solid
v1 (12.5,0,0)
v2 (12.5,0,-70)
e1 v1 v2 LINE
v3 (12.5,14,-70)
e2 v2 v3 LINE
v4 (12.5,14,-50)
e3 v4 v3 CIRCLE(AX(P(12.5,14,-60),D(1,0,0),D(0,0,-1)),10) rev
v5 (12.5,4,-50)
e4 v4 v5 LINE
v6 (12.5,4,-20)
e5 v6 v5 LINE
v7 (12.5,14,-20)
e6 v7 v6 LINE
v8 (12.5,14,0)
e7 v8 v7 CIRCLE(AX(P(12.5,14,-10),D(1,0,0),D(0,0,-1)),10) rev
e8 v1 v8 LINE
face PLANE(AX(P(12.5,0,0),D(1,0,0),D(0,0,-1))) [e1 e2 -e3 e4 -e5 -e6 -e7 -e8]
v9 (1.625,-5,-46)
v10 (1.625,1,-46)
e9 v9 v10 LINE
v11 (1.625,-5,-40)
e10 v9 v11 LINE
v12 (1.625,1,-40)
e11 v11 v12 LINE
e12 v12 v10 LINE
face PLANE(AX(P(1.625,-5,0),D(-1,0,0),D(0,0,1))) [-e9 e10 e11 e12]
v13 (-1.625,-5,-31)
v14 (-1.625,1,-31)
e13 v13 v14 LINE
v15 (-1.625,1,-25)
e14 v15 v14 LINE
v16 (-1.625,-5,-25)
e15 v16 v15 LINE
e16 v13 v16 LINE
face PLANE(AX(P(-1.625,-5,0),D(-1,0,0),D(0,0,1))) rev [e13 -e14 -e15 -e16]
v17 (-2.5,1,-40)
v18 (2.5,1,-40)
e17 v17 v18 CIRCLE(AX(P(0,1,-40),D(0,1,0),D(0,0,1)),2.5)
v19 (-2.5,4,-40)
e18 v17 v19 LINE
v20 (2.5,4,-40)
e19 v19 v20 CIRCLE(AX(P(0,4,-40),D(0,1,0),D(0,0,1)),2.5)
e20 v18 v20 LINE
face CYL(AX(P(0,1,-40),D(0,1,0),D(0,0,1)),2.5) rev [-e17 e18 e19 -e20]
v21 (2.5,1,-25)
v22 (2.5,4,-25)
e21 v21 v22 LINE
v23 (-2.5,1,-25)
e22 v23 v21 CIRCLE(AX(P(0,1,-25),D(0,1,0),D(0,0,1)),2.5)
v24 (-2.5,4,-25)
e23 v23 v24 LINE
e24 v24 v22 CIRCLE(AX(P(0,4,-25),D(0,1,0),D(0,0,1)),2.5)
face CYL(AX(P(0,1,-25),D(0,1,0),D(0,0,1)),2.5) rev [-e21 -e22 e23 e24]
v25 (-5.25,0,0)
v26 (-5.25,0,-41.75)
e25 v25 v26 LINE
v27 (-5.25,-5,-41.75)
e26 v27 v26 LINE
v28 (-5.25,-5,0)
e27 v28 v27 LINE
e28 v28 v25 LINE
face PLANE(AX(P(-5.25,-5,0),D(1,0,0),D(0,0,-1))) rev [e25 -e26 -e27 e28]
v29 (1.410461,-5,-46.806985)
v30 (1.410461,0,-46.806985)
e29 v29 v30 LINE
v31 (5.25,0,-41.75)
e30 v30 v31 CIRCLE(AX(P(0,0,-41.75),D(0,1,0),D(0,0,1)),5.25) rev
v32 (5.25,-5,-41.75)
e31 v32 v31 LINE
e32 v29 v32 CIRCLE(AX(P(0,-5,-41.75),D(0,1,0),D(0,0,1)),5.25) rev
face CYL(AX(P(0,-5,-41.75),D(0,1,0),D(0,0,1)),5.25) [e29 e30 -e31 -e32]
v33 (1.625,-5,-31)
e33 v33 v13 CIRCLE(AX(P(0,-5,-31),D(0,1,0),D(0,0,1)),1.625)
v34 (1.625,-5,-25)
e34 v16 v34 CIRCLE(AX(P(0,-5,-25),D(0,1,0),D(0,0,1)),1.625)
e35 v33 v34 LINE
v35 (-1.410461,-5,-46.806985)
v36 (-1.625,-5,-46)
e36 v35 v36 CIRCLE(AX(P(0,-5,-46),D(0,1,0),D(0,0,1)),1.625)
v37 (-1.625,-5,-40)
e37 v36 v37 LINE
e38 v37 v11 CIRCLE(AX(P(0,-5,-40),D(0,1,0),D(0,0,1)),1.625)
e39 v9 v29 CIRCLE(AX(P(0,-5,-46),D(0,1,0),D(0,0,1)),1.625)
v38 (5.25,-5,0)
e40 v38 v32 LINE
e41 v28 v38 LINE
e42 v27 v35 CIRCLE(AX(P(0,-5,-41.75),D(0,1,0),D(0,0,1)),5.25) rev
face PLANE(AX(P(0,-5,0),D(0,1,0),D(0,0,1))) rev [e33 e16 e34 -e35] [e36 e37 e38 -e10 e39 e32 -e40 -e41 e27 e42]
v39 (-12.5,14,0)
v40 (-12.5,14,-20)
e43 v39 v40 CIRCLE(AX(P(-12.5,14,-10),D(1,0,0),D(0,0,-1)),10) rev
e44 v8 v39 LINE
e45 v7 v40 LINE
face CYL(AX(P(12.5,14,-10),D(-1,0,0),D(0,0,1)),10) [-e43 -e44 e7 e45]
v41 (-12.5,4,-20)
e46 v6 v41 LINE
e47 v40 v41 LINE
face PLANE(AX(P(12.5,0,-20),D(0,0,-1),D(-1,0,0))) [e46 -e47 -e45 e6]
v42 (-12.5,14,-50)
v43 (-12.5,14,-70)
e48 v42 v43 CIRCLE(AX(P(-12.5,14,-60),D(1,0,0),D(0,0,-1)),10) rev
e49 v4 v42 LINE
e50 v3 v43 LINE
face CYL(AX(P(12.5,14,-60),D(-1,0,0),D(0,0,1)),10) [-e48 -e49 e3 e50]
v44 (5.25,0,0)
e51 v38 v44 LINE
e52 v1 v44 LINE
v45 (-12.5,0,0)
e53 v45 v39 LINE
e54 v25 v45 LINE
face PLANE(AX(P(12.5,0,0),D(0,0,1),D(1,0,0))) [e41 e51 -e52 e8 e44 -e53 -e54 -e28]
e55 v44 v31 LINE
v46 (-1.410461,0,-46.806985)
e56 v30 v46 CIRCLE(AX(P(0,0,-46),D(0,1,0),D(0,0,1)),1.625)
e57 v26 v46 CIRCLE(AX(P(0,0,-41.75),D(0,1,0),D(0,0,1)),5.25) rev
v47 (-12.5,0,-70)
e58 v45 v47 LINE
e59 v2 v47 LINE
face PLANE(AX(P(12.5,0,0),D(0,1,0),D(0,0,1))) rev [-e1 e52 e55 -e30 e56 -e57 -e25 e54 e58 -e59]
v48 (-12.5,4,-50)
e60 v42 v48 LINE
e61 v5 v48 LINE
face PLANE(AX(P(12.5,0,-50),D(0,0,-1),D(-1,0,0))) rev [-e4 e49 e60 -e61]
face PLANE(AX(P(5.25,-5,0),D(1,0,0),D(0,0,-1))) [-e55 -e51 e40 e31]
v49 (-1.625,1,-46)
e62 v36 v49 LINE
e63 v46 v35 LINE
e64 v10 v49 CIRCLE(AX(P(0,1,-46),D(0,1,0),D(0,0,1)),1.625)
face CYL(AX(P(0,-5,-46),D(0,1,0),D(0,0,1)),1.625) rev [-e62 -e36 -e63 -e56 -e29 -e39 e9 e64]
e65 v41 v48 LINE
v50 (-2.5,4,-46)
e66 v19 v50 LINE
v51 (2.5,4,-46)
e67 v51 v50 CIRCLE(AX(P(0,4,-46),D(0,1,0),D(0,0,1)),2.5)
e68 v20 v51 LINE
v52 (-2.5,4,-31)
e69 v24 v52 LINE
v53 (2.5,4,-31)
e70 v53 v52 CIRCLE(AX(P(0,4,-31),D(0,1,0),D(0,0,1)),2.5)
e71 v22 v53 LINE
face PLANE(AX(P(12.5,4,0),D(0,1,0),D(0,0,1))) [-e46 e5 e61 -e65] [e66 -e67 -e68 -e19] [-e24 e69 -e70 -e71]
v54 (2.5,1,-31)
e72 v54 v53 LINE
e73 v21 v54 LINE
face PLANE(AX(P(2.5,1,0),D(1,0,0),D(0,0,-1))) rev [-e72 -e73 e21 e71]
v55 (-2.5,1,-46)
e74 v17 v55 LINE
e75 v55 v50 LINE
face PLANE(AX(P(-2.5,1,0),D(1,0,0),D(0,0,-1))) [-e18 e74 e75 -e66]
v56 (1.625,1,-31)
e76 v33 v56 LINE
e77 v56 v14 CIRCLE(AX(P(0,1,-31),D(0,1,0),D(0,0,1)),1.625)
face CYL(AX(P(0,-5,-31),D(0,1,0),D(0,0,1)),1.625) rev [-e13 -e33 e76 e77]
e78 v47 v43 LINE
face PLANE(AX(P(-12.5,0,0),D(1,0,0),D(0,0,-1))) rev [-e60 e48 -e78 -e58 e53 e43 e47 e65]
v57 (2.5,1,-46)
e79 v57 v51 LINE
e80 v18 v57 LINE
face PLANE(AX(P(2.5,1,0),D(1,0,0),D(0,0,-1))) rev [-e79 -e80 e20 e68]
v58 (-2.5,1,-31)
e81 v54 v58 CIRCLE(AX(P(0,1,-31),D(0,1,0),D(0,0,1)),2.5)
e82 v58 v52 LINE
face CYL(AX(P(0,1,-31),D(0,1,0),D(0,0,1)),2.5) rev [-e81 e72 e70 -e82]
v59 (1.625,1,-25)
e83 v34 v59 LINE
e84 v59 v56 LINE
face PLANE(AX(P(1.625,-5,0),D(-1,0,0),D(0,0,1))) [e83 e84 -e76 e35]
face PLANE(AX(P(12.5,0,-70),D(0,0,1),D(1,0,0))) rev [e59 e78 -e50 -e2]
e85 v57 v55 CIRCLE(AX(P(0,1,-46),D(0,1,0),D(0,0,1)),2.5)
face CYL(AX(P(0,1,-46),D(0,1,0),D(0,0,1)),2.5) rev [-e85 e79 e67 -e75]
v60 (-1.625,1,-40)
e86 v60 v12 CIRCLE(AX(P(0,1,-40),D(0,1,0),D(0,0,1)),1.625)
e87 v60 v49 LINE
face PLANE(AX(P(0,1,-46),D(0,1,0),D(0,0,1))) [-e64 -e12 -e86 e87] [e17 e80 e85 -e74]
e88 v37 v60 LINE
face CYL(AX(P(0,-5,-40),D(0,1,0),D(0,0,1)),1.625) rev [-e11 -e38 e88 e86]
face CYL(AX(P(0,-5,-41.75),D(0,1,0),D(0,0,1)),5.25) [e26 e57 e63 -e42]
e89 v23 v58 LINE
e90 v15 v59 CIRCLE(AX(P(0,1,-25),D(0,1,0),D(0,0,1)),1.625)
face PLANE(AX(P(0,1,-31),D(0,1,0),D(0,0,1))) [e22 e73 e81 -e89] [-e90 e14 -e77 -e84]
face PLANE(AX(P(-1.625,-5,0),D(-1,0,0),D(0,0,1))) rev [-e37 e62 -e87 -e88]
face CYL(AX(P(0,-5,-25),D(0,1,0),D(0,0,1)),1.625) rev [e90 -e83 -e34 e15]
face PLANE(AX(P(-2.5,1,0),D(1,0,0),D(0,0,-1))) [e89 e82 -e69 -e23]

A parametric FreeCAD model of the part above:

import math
import FreeCAD as App
import Part
import Sketcher

V = App.Vector

doc = App.newDocument("Part")
body = doc.addObject("PartDesign::Body", "Body")

# Sketch on YZ plane
sketch1 = body.newObject("Sketcher::SketchObject", "Sketch")
sketch1.AttachmentSupport = (doc.getObject("YZ_Plane"), [""])
sketch1.MapMode = "FlatFace"
sketch1.addGeometry([
    Part.LineSegment(V(0, 0, 0), V(0, -70, 0)),  # 0
    Part.LineSegment(V(0, -70, 0), V(14, -70, 0)),  # 1
    Part.ArcOfCircle(Part.Circle(V(14, -60, 0), V(0, 0, 1), 10), math.radians(-90), math.radians(90)),  # 2
    Part.LineSegment(V(14, -50, 0), V(4, -50, 0)),  # 3
    Part.LineSegment(V(4, -50, 0), V(4, -20, 0)),  # 4
    Part.LineSegment(V(4, -20, 0), V(14, -20, 0)),  # 5
    Part.ArcOfCircle(Part.Circle(V(14, -10, 0), V(0, 0, 1), 10), math.radians(-90), math.radians(90)),  # 6
    Part.LineSegment(V(14, 0, 0), V(0, 0, 0)),  # 7
], False)
sketch1.addConstraint([
    Sketcher.Constraint("Coincident", 0, 2, 1, 1),
    Sketcher.Constraint("Tangent", 1, 2, 2, 1),
    Sketcher.Constraint("Tangent", 2, 2, 3, 1),
    Sketcher.Constraint("Coincident", 3, 2, 4, 1),
    Sketcher.Constraint("Coincident", 4, 2, 5, 1),
    Sketcher.Constraint("Tangent", 5, 2, 6, 1),
    Sketcher.Constraint("Tangent", 6, 2, 7, 1),
    Sketcher.Constraint("Coincident", 7, 2, 0, 1),
    Sketcher.Constraint("Vertical", 0),
    Sketcher.Constraint("Horizontal", 1),
    Sketcher.Constraint("Horizontal", 3),
    Sketcher.Constraint("Vertical", 4),
    Sketcher.Constraint("Horizontal", 5),
    Sketcher.Constraint("Horizontal", 7),
    Sketcher.Constraint("Coincident", 7, 2, -1, 1),
    Sketcher.Constraint("Equal", 2, 6),
    Sketcher.Constraint("Vertical", 2, 3, 6, 3),
    Sketcher.Constraint("Radius", 2, 10.0),
    Sketcher.Constraint("DistanceX", 1, 1, 1, 2, 14.0),
    Sketcher.Constraint("DistanceX", 3, 2, 3, 1, 10.0),
    Sketcher.Constraint("DistanceY", 0, 2, 0, 1, 70.0),
])
pad1 = body.newObject("PartDesign::Pad", "Pad")
pad1.Profile = sketch1
pad1.Length = 25
pad1.Midplane = True

# Sketch on XZ plane
sketch2 = body.newObject("Sketcher::SketchObject", "Sketch001")
sketch2.AttachmentSupport = (doc.getObject("XZ_Plane"), [""])
sketch2.MapMode = "FlatFace"
sketch2.addGeometry([
    Part.ArcOfCircle(Part.Circle(V(0, -41.75, 0), V(0, 0, 1), 5.25), math.radians(180), math.radians(360)),
    Part.LineSegment(V(-5.25, -41.75, 0), V(-5.25, 0, 0)),
    Part.LineSegment(V(-5.25, 0, 0), V(5.25, 0, 0)),
    Part.LineSegment(V(5.25, 0, 0), V(5.25, -41.75, 0)),
], False)
sketch2.addConstraint([
    Sketcher.Constraint("Tangent", 0, 1, 1, 1),
    Sketcher.Constraint("Coincident", 1, 2, 2, 1),
    Sketcher.Constraint("Coincident", 2, 2, 3, 1),
    Sketcher.Constraint("Tangent", 3, 2, 0, 2),
    Sketcher.Constraint("Vertical", 1),
    Sketcher.Constraint("Horizontal", 2),
    Sketcher.Constraint("Vertical", 3),
    Sketcher.Constraint("Symmetric", 1, 2, 2, 2, -1, 1),
    Sketcher.Constraint("Radius", 0, 5.25),
    Sketcher.Constraint("DistanceY", 1, 1, 1, 2, 41.75),
])
pad2 = body.newObject("PartDesign::Pad", "Pad001")
pad2.Profile = sketch2
pad2.Length = 5

# Sketch on XZ plane
sketch3 = body.newObject("Sketcher::SketchObject", "Sketch002")
sketch3.AttachmentSupport = (doc.getObject("XZ_Plane"), [""])
sketch3.MapMode = "FlatFace"
sketch3.addGeometry([
    Part.LineSegment(V(1.625, -25, 0), V(1.625, -31, 0)),  # 0
    Part.ArcOfCircle(Part.Circle(V(0, -31, 0), V(0, 0, 1), 1.625), math.radians(180), math.radians(360)),  # 1
    Part.LineSegment(V(-1.625, -31, 0), V(-1.625, -25, 0)),  # 2
    Part.ArcOfCircle(Part.Circle(V(0, -25, 0), V(0, 0, 1), 1.625), math.radians(0), math.radians(180)),  # 3
    Part.LineSegment(V(1.625, -40, 0), V(1.625, -46, 0)),  # 4
    Part.ArcOfCircle(Part.Circle(V(0, -46, 0), V(0, 0, 1), 1.625), math.radians(180), math.radians(360)),  # 5
    Part.LineSegment(V(-1.625, -46, 0), V(-1.625, -40, 0)),  # 6
    Part.ArcOfCircle(Part.Circle(V(0, -40, 0), V(0, 0, 1), 1.625), math.radians(0), math.radians(180)),  # 7
], False)
sketch3.addConstraint([
    Sketcher.Constraint("Tangent", 0, 2, 1, 2),
    Sketcher.Constraint("Tangent", 1, 1, 2, 1),
    Sketcher.Constraint("Tangent", 2, 2, 3, 2),
    Sketcher.Constraint("Tangent", 3, 1, 0, 1),
    Sketcher.Constraint("Tangent", 4, 2, 5, 2),
    Sketcher.Constraint("Tangent", 5, 1, 6, 1),
    Sketcher.Constraint("Tangent", 6, 2, 7, 2),
    Sketcher.Constraint("Tangent", 7, 1, 4, 1),
    Sketcher.Constraint("Vertical", 0),
    Sketcher.Constraint("Vertical", 2),
    Sketcher.Constraint("Vertical", 4),
    Sketcher.Constraint("Vertical", 6),
    Sketcher.Constraint("Equal", 3, 5),
    Sketcher.Constraint("PointOnObject", 1, 3, -2),
    Sketcher.Constraint("PointOnObject", 5, 3, -2),
    Sketcher.Constraint("Equal", 2, 4),
    Sketcher.Constraint("DistanceY", 0, 2, 0, 1, 6.0),
    Sketcher.Constraint("DistanceY", 1, 3, -1, 1, 31.0),
    Sketcher.Constraint("DistanceY", 5, 3, -1, 1, 46.0),
    Sketcher.Constraint("Radius", 1, 1.625),
])
pocket1 = body.newObject("PartDesign::Pocket", "Pocket")
pocket1.Profile = sketch3
pocket1.Type = "ThroughAll"
pocket1.Midplane = True

# Sketch on XZ plane
sketch4 = body.newObject("Sketcher::SketchObject", "Sketch003")
sketch4.AttachmentSupport = (doc.getObject("XZ_Plane"), [""])
sketch4.MapMode = "FlatFace"
sketch4.AttachmentOffset = App.Placement(V(0, 0, -4), App.Rotation())
sketch4.addGeometry([
    Part.LineSegment(V(-2.5, -31, 0), V(-2.5, -25, 0)),  # 0
    Part.ArcOfCircle(Part.Circle(V(0, -25, 0), V(0, 0, 1), 2.5), math.radians(0), math.radians(180)),  # 1
    Part.LineSegment(V(2.5, -25, 0), V(2.5, -31, 0)),  # 2
    Part.ArcOfCircle(Part.Circle(V(0, -31, 0), V(0, 0, 1), 2.5), math.radians(180), math.radians(360)),  # 3
    Part.ArcOfCircle(Part.Circle(V(0, -31, 0), V(0, 0, 1), 1.625), math.radians(180), math.radians(360)),  # 4
    Part.LineSegment(V(1.625, -31, 0), V(1.625, -25, 0)),  # 5
    Part.ArcOfCircle(Part.Circle(V(0, -25, 0), V(0, 0, 1), 1.625), math.radians(0), math.radians(180)),  # 6
    Part.LineSegment(V(-1.625, -25, 0), V(-1.625, -31, 0)),  # 7
    Part.LineSegment(V(-2.5, -46, 0), V(-2.5, -40, 0)),  # 8
    Part.ArcOfCircle(Part.Circle(V(0, -40, 0), V(0, 0, 1), 2.5), math.radians(0), math.radians(180)),  # 9
    Part.LineSegment(V(2.5, -40, 0), V(2.5, -46, 0)),  # 10
    Part.ArcOfCircle(Part.Circle(V(0, -46, 0), V(0, 0, 1), 2.5), math.radians(180), math.radians(360)),  # 11
    Part.ArcOfCircle(Part.Circle(V(0, -46, 0), V(0, 0, 1), 1.625), math.radians(180), math.radians(360)),  # 12
    Part.LineSegment(V(1.625, -46, 0), V(1.625, -40, 0)),  # 13
    Part.ArcOfCircle(Part.Circle(V(0, -40, 0), V(0, 0, 1), 1.625), math.radians(0), math.radians(180)),  # 14
    Part.LineSegment(V(-1.625, -40, 0), V(-1.625, -46, 0)),  # 15
], False)
sketch4.addConstraint([
    Sketcher.Constraint("Tangent", 0, 2, 1, 2),
    Sketcher.Constraint("Tangent", 1, 1, 2, 1),
    Sketcher.Constraint("Tangent", 2, 2, 3, 2),
    Sketcher.Constraint("Tangent", 3, 1, 0, 1),
    Sketcher.Constraint("Tangent", 4, 2, 5, 1),
    Sketcher.Constraint("Tangent", 5, 2, 6, 1),
    Sketcher.Constraint("Tangent", 6, 2, 7, 1),
    Sketcher.Constraint("Tangent", 7, 2, 4, 1),
    Sketcher.Constraint("Tangent", 8, 2, 9, 2),
    Sketcher.Constraint("Tangent", 9, 1, 10, 1),
    Sketcher.Constraint("Tangent", 10, 2, 11, 2),
    Sketcher.Constraint("Tangent", 11, 1, 8, 1),
    Sketcher.Constraint("Tangent", 12, 2, 13, 1),
    Sketcher.Constraint("Tangent", 13, 2, 14, 1),
    Sketcher.Constraint("Tangent", 14, 2, 15, 1),
    Sketcher.Constraint("Tangent", 15, 2, 12, 1),
    Sketcher.Constraint("Vertical", 0),
    Sketcher.Constraint("Vertical", 2),
    Sketcher.Constraint("Vertical", 5),
    Sketcher.Constraint("Vertical", 7),
    Sketcher.Constraint("Vertical", 8),
    Sketcher.Constraint("Vertical", 10),
    Sketcher.Constraint("Vertical", 13),
    Sketcher.Constraint("Vertical", 15),
    Sketcher.Constraint("Coincident", 4, 3, 3, 3),
    Sketcher.Constraint("Coincident", 12, 3, 11, 3),
    Sketcher.Constraint("Equal", 3, 9),
    Sketcher.Constraint("Equal", 6, 12),
    Sketcher.Constraint("PointOnObject", 1, 3, -2),
    Sketcher.Constraint("PointOnObject", 9, 3, -2),
    Sketcher.Constraint("Horizontal", 6, 3, 0, 2),
    Sketcher.Constraint("Horizontal", 14, 3, 8, 2),
    Sketcher.Constraint("Equal", 7, 8),
    Sketcher.Constraint("Radius", 1, 2.5),
    Sketcher.Constraint("DistanceY", 0, 1, 0, 2, 6.0),
    Sketcher.Constraint("DistanceY", 1, 3, -1, 1, 25.0),
    Sketcher.Constraint("DistanceY", 9, 3, -1, 1, 40.0),
    Sketcher.Constraint("Radius", 4, 1.625),
])
pocket2 = body.newObject("PartDesign::Pocket", "Pocket001")
pocket2.Profile = sketch4
pocket2.Length = 3
pocket2.Reversed = True

doc.recompute()
